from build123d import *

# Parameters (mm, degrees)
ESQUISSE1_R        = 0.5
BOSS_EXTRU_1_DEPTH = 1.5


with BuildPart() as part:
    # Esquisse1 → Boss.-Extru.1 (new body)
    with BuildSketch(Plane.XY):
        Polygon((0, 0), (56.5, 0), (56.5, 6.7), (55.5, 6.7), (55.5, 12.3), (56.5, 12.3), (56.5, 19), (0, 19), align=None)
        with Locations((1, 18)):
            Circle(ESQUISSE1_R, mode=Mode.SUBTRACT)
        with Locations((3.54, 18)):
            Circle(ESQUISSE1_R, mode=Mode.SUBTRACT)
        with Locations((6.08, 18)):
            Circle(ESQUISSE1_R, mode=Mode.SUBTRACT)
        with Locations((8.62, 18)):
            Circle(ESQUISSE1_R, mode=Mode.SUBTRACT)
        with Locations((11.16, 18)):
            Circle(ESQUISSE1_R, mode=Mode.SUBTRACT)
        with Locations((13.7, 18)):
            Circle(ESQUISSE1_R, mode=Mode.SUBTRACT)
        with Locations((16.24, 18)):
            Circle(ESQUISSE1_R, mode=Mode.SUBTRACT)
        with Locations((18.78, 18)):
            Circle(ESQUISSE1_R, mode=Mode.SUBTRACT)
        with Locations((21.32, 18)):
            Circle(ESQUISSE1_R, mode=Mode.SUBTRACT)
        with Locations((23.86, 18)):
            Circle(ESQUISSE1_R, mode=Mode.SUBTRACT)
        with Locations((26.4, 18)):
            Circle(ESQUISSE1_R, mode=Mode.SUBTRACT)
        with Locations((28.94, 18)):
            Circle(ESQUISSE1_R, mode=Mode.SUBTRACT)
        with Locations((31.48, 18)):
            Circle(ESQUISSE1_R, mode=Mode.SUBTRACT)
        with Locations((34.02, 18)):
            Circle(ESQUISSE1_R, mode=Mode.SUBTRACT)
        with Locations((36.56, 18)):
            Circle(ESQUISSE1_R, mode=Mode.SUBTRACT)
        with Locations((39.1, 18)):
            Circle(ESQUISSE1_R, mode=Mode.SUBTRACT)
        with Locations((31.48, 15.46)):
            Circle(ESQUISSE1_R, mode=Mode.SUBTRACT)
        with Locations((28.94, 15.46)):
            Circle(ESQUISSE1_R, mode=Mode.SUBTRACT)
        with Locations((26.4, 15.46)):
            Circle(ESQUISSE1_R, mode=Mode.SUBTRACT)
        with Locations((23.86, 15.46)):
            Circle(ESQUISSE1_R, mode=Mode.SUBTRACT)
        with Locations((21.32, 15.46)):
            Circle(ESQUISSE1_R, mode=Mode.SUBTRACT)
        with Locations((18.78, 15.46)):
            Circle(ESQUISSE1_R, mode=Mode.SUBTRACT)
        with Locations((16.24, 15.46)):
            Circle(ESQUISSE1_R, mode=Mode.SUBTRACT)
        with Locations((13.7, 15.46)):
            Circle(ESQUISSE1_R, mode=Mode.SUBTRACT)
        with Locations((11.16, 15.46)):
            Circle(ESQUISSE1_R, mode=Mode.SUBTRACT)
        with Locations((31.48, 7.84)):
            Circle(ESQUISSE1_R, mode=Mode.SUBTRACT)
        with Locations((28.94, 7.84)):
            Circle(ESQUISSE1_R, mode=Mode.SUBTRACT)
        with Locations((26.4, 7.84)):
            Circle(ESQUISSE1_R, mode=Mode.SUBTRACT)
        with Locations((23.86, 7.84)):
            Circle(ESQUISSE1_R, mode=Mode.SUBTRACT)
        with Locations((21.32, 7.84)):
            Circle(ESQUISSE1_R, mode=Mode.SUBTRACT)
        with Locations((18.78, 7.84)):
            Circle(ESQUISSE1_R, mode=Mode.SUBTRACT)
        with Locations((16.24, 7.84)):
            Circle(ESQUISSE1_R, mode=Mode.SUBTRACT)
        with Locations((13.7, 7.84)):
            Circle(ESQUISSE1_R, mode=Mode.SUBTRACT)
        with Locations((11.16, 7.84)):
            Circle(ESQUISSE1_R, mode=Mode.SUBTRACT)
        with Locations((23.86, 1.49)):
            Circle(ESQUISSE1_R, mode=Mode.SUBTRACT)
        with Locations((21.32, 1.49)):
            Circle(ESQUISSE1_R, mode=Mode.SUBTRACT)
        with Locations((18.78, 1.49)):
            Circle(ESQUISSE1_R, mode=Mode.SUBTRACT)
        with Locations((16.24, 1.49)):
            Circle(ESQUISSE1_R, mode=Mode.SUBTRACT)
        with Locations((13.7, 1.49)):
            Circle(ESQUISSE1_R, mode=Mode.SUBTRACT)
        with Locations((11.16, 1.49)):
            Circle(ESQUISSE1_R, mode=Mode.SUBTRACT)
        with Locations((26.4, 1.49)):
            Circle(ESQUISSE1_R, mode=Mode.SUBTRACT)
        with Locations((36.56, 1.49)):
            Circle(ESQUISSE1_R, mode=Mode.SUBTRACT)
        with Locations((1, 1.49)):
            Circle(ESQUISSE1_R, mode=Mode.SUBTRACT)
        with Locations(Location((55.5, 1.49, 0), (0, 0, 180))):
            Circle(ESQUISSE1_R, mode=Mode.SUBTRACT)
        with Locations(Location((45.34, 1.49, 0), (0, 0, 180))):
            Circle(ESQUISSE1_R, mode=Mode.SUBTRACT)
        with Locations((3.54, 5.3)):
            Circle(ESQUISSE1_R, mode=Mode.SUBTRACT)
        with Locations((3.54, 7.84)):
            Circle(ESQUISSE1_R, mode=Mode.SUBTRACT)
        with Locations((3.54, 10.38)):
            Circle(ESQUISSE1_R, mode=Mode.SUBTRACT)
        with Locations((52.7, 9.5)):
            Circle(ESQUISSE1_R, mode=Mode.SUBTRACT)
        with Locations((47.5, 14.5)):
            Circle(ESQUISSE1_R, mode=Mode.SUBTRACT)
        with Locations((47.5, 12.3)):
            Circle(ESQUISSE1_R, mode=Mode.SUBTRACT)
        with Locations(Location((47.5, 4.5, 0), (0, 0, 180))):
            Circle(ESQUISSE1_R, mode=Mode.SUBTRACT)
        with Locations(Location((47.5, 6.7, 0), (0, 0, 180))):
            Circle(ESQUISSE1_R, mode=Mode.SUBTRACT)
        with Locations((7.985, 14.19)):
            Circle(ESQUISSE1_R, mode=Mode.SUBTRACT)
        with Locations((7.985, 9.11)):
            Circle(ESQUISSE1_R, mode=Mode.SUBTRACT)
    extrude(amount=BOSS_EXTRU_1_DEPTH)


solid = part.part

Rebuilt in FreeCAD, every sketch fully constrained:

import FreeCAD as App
import Part
import Sketcher
from FreeCAD import Vector

doc = App.newDocument("Part")
body = doc.addObject("PartDesign::Body", "Body")

# Sketch on XY plane
sketch1 = doc.addObject("Sketcher::SketchObject", "Sketch")
body.addObject(sketch1)
sketch1.AttachmentSupport = (doc.XY_Plane, [""])
sketch1.MapMode = "FlatFace"
sketch1.addGeometry([
    Part.LineSegment(Vector(0, 0, 0), Vector(56.5, 0, 0)),  # 0
    Part.LineSegment(Vector(56.5, 0, 0), Vector(56.5, 6.7, 0)),  # 1
    Part.LineSegment(Vector(56.5, 6.7, 0), Vector(55.5, 6.7, 0)),  # 2
    Part.LineSegment(Vector(55.5, 6.7, 0), Vector(55.5, 12.3, 0)),  # 3
    Part.LineSegment(Vector(55.5, 12.3, 0), Vector(56.5, 12.3, 0)),  # 4
    Part.LineSegment(Vector(56.5, 12.3, 0), Vector(56.5, 19, 0)),  # 5
    Part.LineSegment(Vector(56.5, 19, 0), Vector(0, 19, 0)),  # 6
    Part.LineSegment(Vector(0, 19, 0), Vector(0, 0, 0)),  # 7
    Part.Circle(Vector(1, 1.49, 0), Vector(0, 0, 1), 0.5),  # 8
    Part.Circle(Vector(11.16, 1.49, 0), Vector(0, 0, 1), 0.5),  # 9
    Part.Circle(Vector(13.7, 1.49, 0), Vector(0, 0, 1), 0.5),  # 10
    Part.Circle(Vector(3.54, 5.3, 0), Vector(0, 0, 1), 0.5),  # 11
    Part.Circle(Vector(16.24, 1.49, 0), Vector(0, 0, 1), 0.5),  # 12
    Part.Circle(Vector(18.78, 1.49, 0), Vector(0, 0, 1), 0.5),  # 13
    Part.Circle(Vector(21.32, 1.49, 0), Vector(0, 0, 1), 0.5),  # 14
    Part.Circle(Vector(23.86, 1.49, 0), Vector(0, 0, 1), 0.5),  # 15
    Part.Circle(Vector(26.4, 1.49, 0), Vector(0, 0, 1), 0.5),  # 16
    Part.Circle(Vector(3.54, 7.84, 0), Vector(0, 0, 1), 0.5),  # 17
    Part.Circle(Vector(11.16, 7.84, 0), Vector(0, 0, 1), 0.5),  # 18
    Part.Circle(Vector(13.7, 7.84, 0), Vector(0, 0, 1), 0.5),  # 19
    Part.Circle(Vector(7.985, 9.11, 0), Vector(0, 0, 1), 0.5),  # 20
    Part.Circle(Vector(16.24, 7.84, 0), Vector(0, 0, 1), 0.5),  # 21
    Part.Circle(Vector(18.78, 7.84, 0), Vector(0, 0, 1), 0.5),  # 22
    Part.Circle(Vector(21.32, 7.84, 0), Vector(0, 0, 1), 0.5),  # 23
    Part.Circle(Vector(23.86, 7.84, 0), Vector(0, 0, 1), 0.5),  # 24
    Part.Circle(Vector(26.4, 7.84, 0), Vector(0, 0, 1), 0.5),  # 25
    Part.Circle(Vector(36.56, 1.49, 0), Vector(0, 0, 1), 0.5),  # 26
    Part.Circle(Vector(45.34, 1.49, 0), Vector(0, 0, 1), 0.5),  # 27
    Part.Circle(Vector(55.5, 1.49, 0), Vector(0, 0, 1), 0.5),  # 28
    Part.Circle(Vector(47.5, 4.5, 0), Vector(0, 0, 1), 0.5),  # 29
    Part.Circle(Vector(28.94, 7.84, 0), Vector(0, 0, 1), 0.5),  # 30
    Part.Circle(Vector(31.48, 7.84, 0), Vector(0, 0, 1), 0.5),  # 31
    Part.Circle(Vector(47.5, 6.7, 0), Vector(0, 0, 1), 0.5),  # 32
    Part.Circle(Vector(52.7, 9.5, 0), Vector(0, 0, 1), 0.5),  # 33
    Part.Circle(Vector(3.54, 10.38, 0), Vector(0, 0, 1), 0.5),  # 34
    Part.Circle(Vector(7.985, 14.19, 0), Vector(0, 0, 1), 0.5),  # 35
    Part.Circle(Vector(11.16, 15.46, 0), Vector(0, 0, 1), 0.5),  # 36
    Part.Circle(Vector(13.7, 15.46, 0), Vector(0, 0, 1), 0.5),  # 37
    Part.Circle(Vector(1, 18, 0), Vector(0, 0, 1), 0.5),  # 38
    Part.Circle(Vector(3.54, 18, 0), Vector(0, 0, 1), 0.5),  # 39
    Part.Circle(Vector(6.08, 18, 0), Vector(0, 0, 1), 0.5),  # 40
    Part.Circle(Vector(8.62, 18, 0), Vector(0, 0, 1), 0.5),  # 41
    Part.Circle(Vector(11.16, 18, 0), Vector(0, 0, 1), 0.5),  # 42
    Part.Circle(Vector(13.7, 18, 0), Vector(0, 0, 1), 0.5),  # 43
    Part.Circle(Vector(16.24, 15.46, 0), Vector(0, 0, 1), 0.5),  # 44
    Part.Circle(Vector(18.78, 15.46, 0), Vector(0, 0, 1), 0.5),  # 45
    Part.Circle(Vector(21.32, 15.46, 0), Vector(0, 0, 1), 0.5),  # 46
    Part.Circle(Vector(23.86, 15.46, 0), Vector(0, 0, 1), 0.5),  # 47
    Part.Circle(Vector(26.4, 15.46, 0), Vector(0, 0, 1), 0.5),  # 48
    Part.Circle(Vector(16.24, 18, 0), Vector(0, 0, 1), 0.5),  # 49
    Part.Circle(Vector(18.78, 18, 0), Vector(0, 0, 1), 0.5),  # 50
    Part.Circle(Vector(21.32, 18, 0), Vector(0, 0, 1), 0.5),  # 51
    Part.Circle(Vector(23.86, 18, 0), Vector(0, 0, 1), 0.5),  # 52
    Part.Circle(Vector(26.4, 18, 0), Vector(0, 0, 1), 0.5),  # 53
    Part.Circle(Vector(47.5, 12.3, 0), Vector(0, 0, 1), 0.5),  # 54
    Part.Circle(Vector(28.94, 15.46, 0), Vector(0, 0, 1), 0.5),  # 55
    Part.Circle(Vector(31.48, 15.46, 0), Vector(0, 0, 1), 0.5),  # 56
    Part.Circle(Vector(28.94, 18, 0), Vector(0, 0, 1), 0.5),  # 57
    Part.Circle(Vector(31.48, 18, 0), Vector(0, 0, 1), 0.5),  # 58
    Part.Circle(Vector(34.02, 18, 0), Vector(0, 0, 1), 0.5),  # 59
    Part.Circle(Vector(36.56, 18, 0), Vector(0, 0, 1), 0.5),  # 60
    Part.Circle(Vector(39.1, 18, 0), Vector(0, 0, 1), 0.5),  # 61
    Part.Circle(Vector(47.5, 14.5, 0), Vector(0, 0, 1), 0.5),  # 62
], False)
sketch1.addConstraint([
    Sketcher.Constraint("Coincident", 0, 2, 1, 1),
    Sketcher.Constraint("Coincident", 1, 2, 2, 1),
    Sketcher.Constraint("Coincident", 2, 2, 3, 1),
    Sketcher.Constraint("Coincident", 3, 2, 4, 1),
    Sketcher.Constraint("Coincident", 4, 2, 5, 1),
    Sketcher.Constraint("Coincident", 5, 2, 6, 1),
    Sketcher.Constraint("Coincident", 6, 2, 7, 1),
    Sketcher.Constraint("Coincident", 7, 2, 0, 1),
    Sketcher.Constraint("Horizontal", 0),
    Sketcher.Constraint("Vertical", 1),
    Sketcher.Constraint("Horizontal", 2),
    Sketcher.Constraint("Vertical", 3),
    Sketcher.Constraint("Horizontal", 4),
    Sketcher.Constraint("Vertical", 5),
    Sketcher.Constraint("Horizontal", 6),
    Sketcher.Constraint("Vertical", 7),
    Sketcher.Constraint("Coincident", 7, 2, -1, 1),
    Sketcher.Constraint("Equal", 8, 9),
    Sketcher.Constraint("Equal", 9, 10),
    Sketcher.Constraint("Equal", 10, 11),
    Sketcher.Constraint("Equal", 11, 12),
    Sketcher.Constraint("Equal", 12, 13),
    Sketcher.Constraint("Equal", 13, 14),
    Sketcher.Constraint("Equal", 14, 15),
    Sketcher.Constraint("Equal", 15, 16),
    Sketcher.Constraint("Equal", 16, 17),
    Sketcher.Constraint("Equal", 17, 18),
    Sketcher.Constraint("Equal", 18, 19),
    Sketcher.Constraint("Equal", 19, 20),
    Sketcher.Constraint("Equal", 20, 21),
    Sketcher.Constraint("Equal", 21, 22),
    Sketcher.Constraint("Equal", 22, 23),
    Sketcher.Constraint("Equal", 23, 24),
    Sketcher.Constraint("Equal", 24, 25),
    Sketcher.Constraint("Equal", 25, 26),
    Sketcher.Constraint("Equal", 26, 27),
    Sketcher.Constraint("Equal", 27, 28),
    Sketcher.Constraint("Equal", 28, 29),
    Sketcher.Constraint("Equal", 29, 30),
    Sketcher.Constraint("Equal", 30, 31),
    Sketcher.Constraint("Equal", 31, 32),
    Sketcher.Constraint("Equal", 32, 33),
    Sketcher.Constraint("Equal", 33, 34),
    Sketcher.Constraint("Equal", 34, 35),
    Sketcher.Constraint("Equal", 35, 36),
    Sketcher.Constraint("Equal", 36, 37),
    Sketcher.Constraint("Equal", 37, 38),
    Sketcher.Constraint("Equal", 38, 39),
    Sketcher.Constraint("Equal", 39, 40),
    Sketcher.Constraint("Equal", 40, 41),
    Sketcher.Constraint("Equal", 41, 42),
    Sketcher.Constraint("Equal", 42, 43),
    Sketcher.Constraint("Equal", 43, 44),
    Sketcher.Constraint("Equal", 44, 45),
    Sketcher.Constraint("Equal", 45, 46),
    Sketcher.Constraint("Equal", 46, 47),
    Sketcher.Constraint("Equal", 47, 48),
    Sketcher.Constraint("Equal", 48, 49),
    Sketcher.Constraint("Equal", 49, 50),
    Sketcher.Constraint("Equal", 50, 51),
    Sketcher.Constraint("Equal", 51, 52),
    Sketcher.Constraint("Equal", 52, 53),
    Sketcher.Constraint("Equal", 53, 54),
    Sketcher.Constraint("Equal", 54, 55),
    Sketcher.Constraint("Equal", 55, 56),
    Sketcher.Constraint("Equal", 56, 57),
    Sketcher.Constraint("Equal", 57, 58),
    Sketcher.Constraint("Equal", 58, 59),
    Sketcher.Constraint("Equal", 59, 60),
    Sketcher.Constraint("Equal", 60, 61),
    Sketcher.Constraint("Equal", 61, 62),
    Sketcher.Constraint("Horizontal", 8, 3, 9, 3),
    Sketcher.Constraint("Horizontal", 9, 3, 10, 3),
    Sketcher.Constraint("Horizontal", 10, 3, 12, 3),
    Sketcher.Constraint("Horizontal", 12, 3, 13, 3),
    Sketcher.Constraint("Horizontal", 13, 3, 14, 3),
    Sketcher.Constraint("Horizontal", 14, 3, 15, 3),
    Sketcher.Constraint("Horizontal", 15, 3, 16, 3),
    Sketcher.Constraint("Horizontal", 17, 3, 18, 3),
    Sketcher.Constraint("Horizontal", 18, 3, 19, 3),
    Sketcher.Constraint("Horizontal", 19, 3, 21, 3),
    Sketcher.Constraint("Horizontal", 21, 3, 22, 3),
    Sketcher.Constraint("Horizontal", 22, 3, 23, 3),
    Sketcher.Constraint("Horizontal", 23, 3, 24, 3),
    Sketcher.Constraint("Horizontal", 24, 3, 25, 3),
    Sketcher.Constraint("Horizontal", 16, 3, 26, 3),
    Sketcher.Constraint("Horizontal", 26, 3, 27, 3),
    Sketcher.Constraint("Horizontal", 27, 3, 28, 3),
    Sketcher.Constraint("Horizontal", 25, 3, 30, 3),
    Sketcher.Constraint("Horizontal", 30, 3, 31, 3),
    Sketcher.Constraint("Horizontal", 36, 3, 37, 3),
    Sketcher.Constraint("Horizontal", 38, 3, 39, 3),
    Sketcher.Constraint("Horizontal", 39, 3, 40, 3),
    Sketcher.Constraint("Horizontal", 40, 3, 41, 3),
    Sketcher.Constraint("Horizontal", 41, 3, 42, 3),
    Sketcher.Constraint("Horizontal", 42, 3, 43, 3),
    Sketcher.Constraint("Horizontal", 37, 3, 44, 3),
    Sketcher.Constraint("Horizontal", 44, 3, 45, 3),
    Sketcher.Constraint("Horizontal", 45, 3, 46, 3),
    Sketcher.Constraint("Horizontal", 46, 3, 47, 3),
    Sketcher.Constraint("Horizontal", 47, 3, 48, 3),
    Sketcher.Constraint("Horizontal", 43, 3, 49, 3),
    Sketcher.Constraint("Horizontal", 49, 3, 50, 3),
    Sketcher.Constraint("Horizontal", 50, 3, 51, 3),
    Sketcher.Constraint("Horizontal", 51, 3, 52, 3),
    Sketcher.Constraint("Horizontal", 52, 3, 53, 3),
    Sketcher.Constraint("Horizontal", 48, 3, 55, 3),
    Sketcher.Constraint("Horizontal", 55, 3, 56, 3),
    Sketcher.Constraint("Horizontal", 53, 3, 57, 3),
    Sketcher.Constraint("Horizontal", 57, 3, 58, 3),
    Sketcher.Constraint("Horizontal", 58, 3, 59, 3),
    Sketcher.Constraint("Horizontal", 59, 3, 60, 3),
    Sketcher.Constraint("Horizontal", 60, 3, 61, 3),
    Sketcher.Constraint("Horizontal", 32, 3, 1, 2),
    Sketcher.Constraint("Horizontal", 54, 3, 3, 2),
    Sketcher.Constraint("Vertical", 11, 3, 17, 3),
    Sketcher.Constraint("Vertical", 9, 3, 18, 3),
    Sketcher.Constraint("Vertical", 10, 3, 19, 3),
    Sketcher.Constraint("Vertical", 12, 3, 21, 3),
    Sketcher.Constraint("Vertical", 13, 3, 22, 3),
    Sketcher.Constraint("Vertical", 14, 3, 23, 3),
    Sketcher.Constraint("Vertical", 15, 3, 24, 3),
    Sketcher.Constraint("Vertical", 16, 3, 25, 3),
    Sketcher.Constraint("Vertical", 29, 3, 32, 3),
    Sketcher.Constraint("Vertical", 17, 3, 34, 3),
    Sketcher.Constraint("Vertical", 20, 3, 35, 3),
    Sketcher.Constraint("Vertical", 18, 3, 36, 3),
    Sketcher.Constraint("Vertical", 19, 3, 37, 3),
    Sketcher.Constraint("Vertical", 8, 3, 38, 3),
    Sketcher.Constraint("Vertical", 34, 3, 39, 3),
    Sketcher.Constraint("Vertical", 36, 3, 42, 3),
    Sketcher.Constraint("Vertical", 37, 3, 43, 3),
    Sketcher.Constraint("Vertical", 21, 3, 44, 3),
    Sketcher.Constraint("Vertical", 22, 3, 45, 3),
    Sketcher.Constraint("Vertical", 23, 3, 46, 3),
    Sketcher.Constraint("Vertical", 24, 3, 47, 3),
    Sketcher.Constraint("Vertical", 25, 3, 48, 3),
    Sketcher.Constraint("Vertical", 44, 3, 49, 3),
    Sketcher.Constraint("Vertical", 45, 3, 50, 3),
    Sketcher.Constraint("Vertical", 46, 3, 51, 3),
    Sketcher.Constraint("Vertical", 47, 3, 52, 3),
    Sketcher.Constraint("Vertical", 48, 3, 53, 3),
    Sketcher.Constraint("Vertical", 32, 3, 54, 3),
    Sketcher.Constraint("Vertical", 30, 3, 55, 3),
    Sketcher.Constraint("Vertical", 31, 3, 56, 3),
    Sketcher.Constraint("Vertical", 55, 3, 57, 3),
    Sketcher.Constraint("Vertical", 56, 3, 58, 3),
    Sketcher.Constraint("Vertical", 26, 3, 60, 3),
    Sketcher.Constraint("Vertical", 54, 3, 62, 3),
    Sketcher.Constraint("Vertical", 28, 3, 2, 2),
    Sketcher.Constraint("Vertical", 1, 2, 4, 2),
    Sketcher.Constraint("Equal", 1, 5),
    Sketcher.Constraint("Diameter", 8, 1.0),
    Sketcher.Constraint("DistanceX", 2, 2, 2, 1, 1.0),
    Sketcher.Constraint("DistanceY", 7, 2, 7, 1, 19.0),
    Sketcher.Constraint("DistanceX", 0, 1, 0, 2, 56.5),
    Sketcher.Constraint("DistanceY", 1, 1, 1, 2, 6.7),
    Sketcher.Constraint("DistanceX", -1, 1, 8, 3, 1.0),
    Sketcher.Constraint("DistanceY", -1, 1, 38, 3, 18.0),
    Sketcher.Constraint("DistanceX", -1, 1, 10, 3, 13.7),
    Sketcher.Constraint("DistanceY", -1, 1, 11, 3, 5.3),
    Sketcher.Constraint("DistanceX", -1, 1, 16, 3, 26.4),
    Sketcher.Constraint("DistanceX", -1, 1, 29, 3, 47.5),
    Sketcher.Constraint("DistanceY", -1, 1, 29, 3, 4.5),
    Sketcher.Constraint("DistanceX", -1, 1, 33, 3, 52.7),
    Sketcher.Constraint("DistanceY", -1, 1, 33, 3, 9.5),
    Sketcher.Constraint("DistanceX", -1, 1, 61, 3, 39.1),
    Sketcher.Constraint("DistanceY", -1, 1, 62, 3, 14.5),
    Sketcher.Constraint("DistanceY", -1, 1, 8, 3, 1.49),
    Sketcher.Constraint("DistanceX", -1, 1, 9, 3, 11.16),
    Sketcher.Constraint("DistanceX", -1, 1, 11, 3, 3.54),
    Sketcher.Constraint("DistanceX", -1, 1, 12, 3, 16.24),
    Sketcher.Constraint("DistanceX", -1, 1, 13, 3, 18.78),
    Sketcher.Constraint("DistanceX", -1, 1, 14, 3, 21.32),
    Sketcher.Constraint("DistanceX", -1, 1, 15, 3, 23.86),
    Sketcher.Constraint("DistanceY", -1, 1, 17, 3, 7.84),
    Sketcher.Constraint("DistanceY", -1, 1, 20, 3, 9.11),
    Sketcher.Constraint("DistanceX", -1, 1, 26, 3, 36.56),
    Sketcher.Constraint("DistanceX", -1, 1, 27, 3, 45.34),
    Sketcher.Constraint("DistanceX", -1, 1, 30, 3, 28.94),
    Sketcher.Constraint("DistanceX", -1, 1, 31, 3, 31.48),
    Sketcher.Constraint("DistanceY", -1, 1, 34, 3, 10.38),
    Sketcher.Constraint("DistanceY", -1, 1, 35, 3, 14.19),
    Sketcher.Constraint("DistanceY", -1, 1, 36, 3, 15.46),
    Sketcher.Constraint("DistanceX", -1, 1, 40, 3, 6.08),
    Sketcher.Constraint("DistanceX", -1, 1, 41, 3, 8.62),
    Sketcher.Constraint("DistanceX", -1, 1, 59, 3, 34.02),
    Sketcher.Constraint("DistanceX", -1, 1, 20, 3, 7.985),
])
pad1 = doc.addObject("PartDesign::Pad", "Pad")
body.addObject(pad1)
pad1.Profile = sketch1
pad1.Length = 1.5

doc.recompute()
